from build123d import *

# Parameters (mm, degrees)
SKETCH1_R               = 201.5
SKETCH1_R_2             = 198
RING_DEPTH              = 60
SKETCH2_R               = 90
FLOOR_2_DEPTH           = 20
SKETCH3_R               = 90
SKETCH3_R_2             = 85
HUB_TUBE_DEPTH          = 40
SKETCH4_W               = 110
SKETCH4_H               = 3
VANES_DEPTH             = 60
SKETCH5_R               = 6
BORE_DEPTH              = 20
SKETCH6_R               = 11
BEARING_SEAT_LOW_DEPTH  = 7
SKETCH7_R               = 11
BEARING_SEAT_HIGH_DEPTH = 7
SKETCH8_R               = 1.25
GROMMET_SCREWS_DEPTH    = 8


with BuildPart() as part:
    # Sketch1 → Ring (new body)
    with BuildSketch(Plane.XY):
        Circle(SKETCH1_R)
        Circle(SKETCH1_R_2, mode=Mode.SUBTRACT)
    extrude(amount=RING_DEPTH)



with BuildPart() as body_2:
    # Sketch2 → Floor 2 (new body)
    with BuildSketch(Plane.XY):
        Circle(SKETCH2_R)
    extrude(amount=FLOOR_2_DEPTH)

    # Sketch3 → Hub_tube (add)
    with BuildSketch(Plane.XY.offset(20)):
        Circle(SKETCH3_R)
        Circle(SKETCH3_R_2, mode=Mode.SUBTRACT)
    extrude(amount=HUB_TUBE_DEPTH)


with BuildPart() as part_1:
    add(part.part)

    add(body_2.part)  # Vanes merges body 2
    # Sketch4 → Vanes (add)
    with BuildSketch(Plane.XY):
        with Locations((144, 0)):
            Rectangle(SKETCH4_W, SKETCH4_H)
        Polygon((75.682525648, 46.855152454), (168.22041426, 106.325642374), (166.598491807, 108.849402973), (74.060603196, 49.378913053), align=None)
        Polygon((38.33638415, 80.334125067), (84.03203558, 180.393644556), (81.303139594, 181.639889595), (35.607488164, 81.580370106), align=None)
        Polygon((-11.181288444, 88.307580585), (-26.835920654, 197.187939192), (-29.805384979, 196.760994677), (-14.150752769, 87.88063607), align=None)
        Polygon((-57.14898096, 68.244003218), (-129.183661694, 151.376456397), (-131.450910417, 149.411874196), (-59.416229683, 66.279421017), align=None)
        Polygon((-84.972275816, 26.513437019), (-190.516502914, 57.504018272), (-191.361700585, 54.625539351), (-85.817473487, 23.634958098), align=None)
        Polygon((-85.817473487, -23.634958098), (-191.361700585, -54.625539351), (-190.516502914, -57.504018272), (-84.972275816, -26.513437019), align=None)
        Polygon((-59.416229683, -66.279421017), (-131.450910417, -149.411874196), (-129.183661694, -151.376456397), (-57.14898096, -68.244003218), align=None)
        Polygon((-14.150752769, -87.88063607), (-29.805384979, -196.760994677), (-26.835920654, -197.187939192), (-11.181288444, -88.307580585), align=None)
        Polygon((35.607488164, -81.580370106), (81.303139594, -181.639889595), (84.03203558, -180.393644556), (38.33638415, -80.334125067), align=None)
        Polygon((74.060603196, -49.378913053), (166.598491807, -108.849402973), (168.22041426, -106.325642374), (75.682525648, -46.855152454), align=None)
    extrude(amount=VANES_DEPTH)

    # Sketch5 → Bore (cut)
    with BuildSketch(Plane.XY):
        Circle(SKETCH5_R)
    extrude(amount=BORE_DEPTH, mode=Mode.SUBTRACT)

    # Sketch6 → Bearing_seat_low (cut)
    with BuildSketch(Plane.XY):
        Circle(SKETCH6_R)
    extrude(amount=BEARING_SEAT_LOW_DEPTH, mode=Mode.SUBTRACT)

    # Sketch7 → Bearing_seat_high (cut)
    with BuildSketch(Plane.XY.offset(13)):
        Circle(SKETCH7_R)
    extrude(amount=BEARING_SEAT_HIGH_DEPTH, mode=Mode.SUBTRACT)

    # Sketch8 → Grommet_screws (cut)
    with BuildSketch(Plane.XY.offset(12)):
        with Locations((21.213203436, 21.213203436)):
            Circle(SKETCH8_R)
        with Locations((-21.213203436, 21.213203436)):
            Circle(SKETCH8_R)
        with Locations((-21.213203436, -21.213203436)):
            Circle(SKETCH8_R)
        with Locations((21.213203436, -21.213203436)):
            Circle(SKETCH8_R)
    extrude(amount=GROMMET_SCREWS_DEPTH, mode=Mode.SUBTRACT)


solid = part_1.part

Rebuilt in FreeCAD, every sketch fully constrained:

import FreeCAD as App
import Part
import Sketcher


def add_polygon(sketch, points):
    """Adds a closed chain of lines whose ends are joined by coincident constraints."""
    first, n = sketch.GeometryCount, len(points)
    for a, b in zip(points, points[1:] + points[:1]):
        sketch.addGeometry(Part.LineSegment(App.Vector(*a, 0), App.Vector(*b, 0)), False)
    for i in range(n):
        sketch.addConstraint(Sketcher.Constraint("Coincident", first + i, 2, first + (i + 1) % n, 1))

doc = App.newDocument("Part")
body = doc.addObject("PartDesign::Body", "Body")

sketch1 = doc.addObject("Sketcher::SketchObject", "Sketch")
body.addObject(sketch1)
sketch1.AttachmentSupport = (doc.XY_Plane, [""])
sketch1.MapMode = "FlatFace"
sketch1.addGeometry([
    Part.Circle(App.Vector(0, 0, 0), App.Vector(0, 0, 1), 202),
    Part.Circle(App.Vector(0, 0, 0), App.Vector(0, 0, 1), 198),
], False)
sketch1.addConstraint([
    Sketcher.Constraint("Coincident", 0, 3, -1, 1),
    Sketcher.Constraint("Coincident", 1, 3, -1, 1),
    Sketcher.Constraint("Diameter", 0, 403.0),
    Sketcher.Constraint("Diameter", 1, 396.0),
])
pad1 = doc.addObject("PartDesign::Pad", "Pad")
body.addObject(pad1)
pad1.Profile = sketch1
pad1.Length = 60
body2 = doc.addObject("PartDesign::Body", "Body001")

sketch2 = doc.addObject("Sketcher::SketchObject", "Sketch001")
body2.addObject(sketch2)
sketch2.AttachmentSupport = (doc.getObject("XY_Plane001"), [""])
sketch2.MapMode = "FlatFace"
sketch2.addGeometry(Part.Circle(App.Vector(0, 0, 0), App.Vector(0, 0, 1), 90), False)
sketch2.addConstraint([
    Sketcher.Constraint("Coincident", 0, 3, -1, 1),
    Sketcher.Constraint("Diameter", 0, 180.0),
])
pad2 = doc.addObject("PartDesign::Pad", "Pad001")
body2.addObject(pad2)
pad2.Profile = sketch2
pad2.Length = 20

sketch3 = doc.addObject("Sketcher::SketchObject", "Sketch002")
body2.addObject(sketch3)
sketch3.AttachmentSupport = (doc.getObject("XY_Plane001"), [""])
sketch3.MapMode = "FlatFace"
sketch3.AttachmentOffset = App.Placement(App.Vector(0, 0, 20), App.Rotation())
sketch3.addGeometry([
    Part.Circle(App.Vector(0, 0, 0), App.Vector(0, 0, 1), 90),
    Part.Circle(App.Vector(0, 0, 0), App.Vector(0, 0, 1), 85),
], False)
sketch3.addConstraint([
    Sketcher.Constraint("Coincident", 0, 3, -1, 1),
    Sketcher.Constraint("Coincident", 1, 3, -1, 1),
    Sketcher.Constraint("Diameter", 0, 180.0),
    Sketcher.Constraint("Diameter", 1, 170.0),
])
pad3 = doc.addObject("PartDesign::Pad", "Pad002")
body2.addObject(pad3)
pad3.Profile = sketch3
pad3.Length = 40
body.AllowCompound = True
doc.recompute()

boolean = doc.addObject("PartDesign::Boolean", "Boolean")
body.addObject(boolean)
boolean.Type = "Fuse"
boolean.addObjects([body2])

sketch4 = doc.addObject("Sketcher::SketchObject", "Sketch003")
body.addObject(sketch4)
sketch4.AttachmentSupport = (doc.XY_Plane, [""])
sketch4.MapMode = "FlatFace"
add_polygon(sketch4, [(89, 1.5), (89, -1.5), (199, -1.5), (199, 1.5)])
add_polygon(sketch4, [(75.682526, 46.855152), (168.220414, 106.325642), (166.598492, 108.849403), (74.060603, 49.378913)])
add_polygon(sketch4, [(38.336384, 80.334125), (84.032036, 180.393645), (81.30314, 181.63989), (35.607488, 81.58037)])
add_polygon(sketch4, [(-11.181288, 88.307581), (-26.835921, 197.187939), (-29.805385, 196.760995), (-14.150753, 87.880636)])
add_polygon(sketch4, [(-57.148981, 68.244003), (-129.183662, 151.376456), (-131.45091, 149.411874), (-59.41623, 66.279421)])
add_polygon(sketch4, [(-84.972276, 26.513437), (-190.516503, 57.504018), (-191.361701, 54.625539), (-85.817473, 23.634958)])
add_polygon(sketch4, [(-85.817473, -23.634958), (-191.361701, -54.625539), (-190.516503, -57.504018), (-84.972276, -26.513437)])
add_polygon(sketch4, [(-59.41623, -66.279421), (-131.45091, -149.411874), (-129.183662, -151.376456), (-57.148981, -68.244003)])
add_polygon(sketch4, [(-14.150753, -87.880636), (-29.805385, -196.760995), (-26.835921, -197.187939), (-11.181288, -88.307581)])
add_polygon(sketch4, [(35.607488, -81.58037), (81.30314, -181.63989), (84.032036, -180.393645), (38.336384, -80.334125)])
add_polygon(sketch4, [(74.060603, -49.378913), (166.598492, -108.849403), (168.220414, -106.325642), (75.682526, -46.855152)])
sketch4.addConstraint([
    Sketcher.Constraint("Vertical", 0),
    Sketcher.Constraint("Horizontal", 1),
    Sketcher.Constraint("Vertical", 2),
    Sketcher.Constraint("Horizontal", 3),
    Sketcher.Constraint("DistanceX", 1, 1, 1, 2, 110.0),
    Sketcher.Constraint("DistanceY", 0, 2, 0, 1, 3.0),
    Sketcher.Constraint("Distance", 4, 110.0),
    Sketcher.Constraint("Distance", 5, 3.0),
    Sketcher.Constraint("Distance", 6, 110.0),
    Sketcher.Constraint("Distance", 7, 3.0),
    Sketcher.Constraint("Distance", 8, 110.0),
    Sketcher.Constraint("Distance", 9, 3.0),
    Sketcher.Constraint("Distance", 10, 110.0),
    Sketcher.Constraint("Distance", 11, 3.0),
    Sketcher.Constraint("Distance", 12, 110.0),
    Sketcher.Constraint("Distance", 13, 3.0),
    Sketcher.Constraint("Distance", 14, 110.0),
    Sketcher.Constraint("Distance", 15, 3.0),
    Sketcher.Constraint("Distance", 16, 110.0),
    Sketcher.Constraint("Distance", 17, 3.0),
    Sketcher.Constraint("Distance", 18, 110.0),
    Sketcher.Constraint("Distance", 19, 3.0),
    Sketcher.Constraint("Distance", 20, 110.0),
    Sketcher.Constraint("Distance", 21, 3.0),
    Sketcher.Constraint("Distance", 22, 110.0),
    Sketcher.Constraint("Distance", 23, 3.0),
    Sketcher.Constraint("Distance", 24, 110.0),
    Sketcher.Constraint("Distance", 25, 3.0),
    Sketcher.Constraint("Distance", 26, 110.0),
    Sketcher.Constraint("Distance", 27, 3.0),
    Sketcher.Constraint("Distance", 28, 110.0),
    Sketcher.Constraint("Distance", 29, 3.0),
    Sketcher.Constraint("Distance", 30, 110.0),
    Sketcher.Constraint("Distance", 31, 3.0),
    Sketcher.Constraint("Distance", 32, 110.0),
    Sketcher.Constraint("Distance", 33, 3.0),
    Sketcher.Constraint("Distance", 34, 110.0),
    Sketcher.Constraint("Distance", 35, 3.0),
    Sketcher.Constraint("Distance", 36, 110.0),
    Sketcher.Constraint("Distance", 37, 3.0),
    Sketcher.Constraint("Distance", 38, 110.0),
    Sketcher.Constraint("Distance", 39, 3.0),
    Sketcher.Constraint("Distance", 40, 110.0),
    Sketcher.Constraint("Distance", 41, 3.0),
    Sketcher.Constraint("Distance", 42, 110.0),
    Sketcher.Constraint("Distance", 43, 3.0),
    Sketcher.Constraint("DistanceX", -1, 1, 0, 2, 89.0),
    Sketcher.Constraint("DistanceY", 0, 2, -1, 1, 1.5),
    Sketcher.Constraint("DistanceX", 21, 2, -1, 1, 191.361701),
    Sketcher.Constraint("DistanceX", 24, 2, -1, 1, 191.361701),
    Sketcher.Constraint("DistanceY", 23, 2, 14, 2, 61.367199),
    Sketcher.Constraint("DistanceY", 29, 2, 27, 2, 127.741498),
    Sketcher.Constraint("DistanceY", 35, 2, 26, 2, 61.367199),
    Sketcher.Constraint("DistanceX", -1, 1, 5, 2, 166.598492),
    Sketcher.Constraint("DistanceX", -1, 1, 9, 2, 81.30314),
    Sketcher.Constraint("DistanceY", -1, 1, 9, 2, 181.63989),
    Sketcher.Constraint("DistanceX", -1, 1, 10, 2, 35.607488),
    Sketcher.Constraint("DistanceX", 12, 2, -1, 1, 26.835921),
    Sketcher.Constraint("DistanceY", -1, 1, 12, 2, 197.187939),
    Sketcher.Constraint("DistanceX", 15, 2, -1, 1, 11.181288),
    Sketcher.Constraint("DistanceX", 16, 2, -1, 1, 129.183662),
    Sketcher.Constraint("DistanceX", 17, 2, -1, 1, 131.45091),
    Sketcher.Constraint("DistanceX", 18, 2, -1, 1, 59.41623),
    Sketcher.Constraint("DistanceY", -1, 1, 18, 2, 66.279421),
    Sketcher.Constraint("DistanceY", -1, 1, 20, 2, 57.504018),
    Sketcher.Constraint("DistanceY", -1, 1, 21, 2, 54.625539),
    Sketcher.Constraint("DistanceY", -1, 1, 22, 2, 23.634958),
    Sketcher.Constraint("DistanceY", 24, 2, -1, 1, 54.625539),
    Sketcher.Constraint("DistanceY", 25, 2, -1, 1, 57.504018),
    Sketcher.Constraint("DistanceY", 27, 2, -1, 1, 23.634958),
    Sketcher.Constraint("DistanceX", 28, 2, -1, 1, 131.45091),
    Sketcher.Constraint("DistanceX", 29, 2, -1, 1, 129.183662),
    Sketcher.Constraint("DistanceX", 30, 2, -1, 1, 57.148981),
    Sketcher.Constraint("DistanceX", 33, 2, -1, 1, 26.835921),
    Sketcher.Constraint("DistanceY", 33, 2, -1, 1, 197.187939),
    Sketcher.Constraint("DistanceX", 34, 2, -1, 1, 11.181288),
    Sketcher.Constraint("DistanceX", -1, 1, 36, 2, 81.30314),
    Sketcher.Constraint("DistanceY", 36, 2, -1, 1, 181.63989),
    Sketcher.Constraint("DistanceX", -1, 1, 39, 2, 35.607488),
    Sketcher.Constraint("DistanceX", -1, 1, 40, 2, 166.598492),
    Sketcher.Constraint("DistanceY", 4, 2, 5, 2, 2.523761),
    Sketcher.Constraint("DistanceX", 6, 2, 5, 2, 92.537889),
    Sketcher.Constraint("DistanceY", 5, 2, 8, 2, 71.544242),
    Sketcher.Constraint("DistanceX", 8, 2, 4, 2, 84.188379),
    Sketcher.Constraint("DistanceX", 32, 2, 37, 2, 113.837421),
    Sketcher.Constraint("DistanceY", 37, 2, 40, 2, 71.544242),
    Sketcher.Constraint("DistanceY", 40, 2, 41, 2, 2.523761),
    Sketcher.Constraint("DistanceX", 38, 2, 42, 2, 37.346141),
])
pad4 = doc.addObject("PartDesign::Pad", "Pad003")
body.addObject(pad4)
pad4.Profile = sketch4
pad4.Length = 60

sketch5 = doc.addObject("Sketcher::SketchObject", "Sketch004")
body.addObject(sketch5)
sketch5.AttachmentSupport = (doc.XY_Plane, [""])
sketch5.MapMode = "FlatFace"
sketch5.addGeometry(Part.Circle(App.Vector(0, 0, 0), App.Vector(0, 0, 1), 6), False)
sketch5.addConstraint([
    Sketcher.Constraint("Coincident", 0, 3, -1, 1),
    Sketcher.Constraint("Diameter", 0, 12.0),
])
pocket1 = doc.addObject("PartDesign::Pocket", "Pocket")
body.addObject(pocket1)
pocket1.Profile = sketch5
pocket1.Length = 20
pocket1.Reversed = True

sketch6 = doc.addObject("Sketcher::SketchObject", "Sketch005")
body.addObject(sketch6)
sketch6.AttachmentSupport = (doc.XY_Plane, [""])
sketch6.MapMode = "FlatFace"
sketch6.addGeometry(Part.Circle(App.Vector(0, 0, 0), App.Vector(0, 0, 1), 11), False)
sketch6.addConstraint([
    Sketcher.Constraint("Coincident", 0, 3, -1, 1),
    Sketcher.Constraint("Diameter", 0, 22.0),
])
pocket2 = doc.addObject("PartDesign::Pocket", "Pocket001")
body.addObject(pocket2)
pocket2.Profile = sketch6
pocket2.Length = 7
pocket2.Reversed = True

sketch7 = doc.addObject("Sketcher::SketchObject", "Sketch006")
body.addObject(sketch7)
sketch7.AttachmentSupport = (doc.XY_Plane, [""])
sketch7.MapMode = "FlatFace"
sketch7.AttachmentOffset = App.Placement(App.Vector(0, 0, 13), App.Rotation())
sketch7.addGeometry(Part.Circle(App.Vector(0, 0, 0), App.Vector(0, 0, 1), 11), False)
sketch7.addConstraint([
    Sketcher.Constraint("Coincident", 0, 3, -1, 1),
    Sketcher.Constraint("Diameter", 0, 22.0),
])
pocket3 = doc.addObject("PartDesign::Pocket", "Pocket002")
body.addObject(pocket3)
pocket3.Profile = sketch7
pocket3.Length = 7
pocket3.Reversed = True

sketch8 = doc.addObject("Sketcher::SketchObject", "Sketch007")
body.addObject(sketch8)
sketch8.AttachmentSupport = (doc.XY_Plane, [""])
sketch8.MapMode = "FlatFace"
sketch8.AttachmentOffset = App.Placement(App.Vector(0, 0, 12), App.Rotation())
sketch8.addGeometry([
    Part.Circle(App.Vector(21.2, 21.2, 0), App.Vector(0, 0, 1), 1.2),
    Part.Circle(App.Vector(-21.2, 21.2, 0), App.Vector(0, 0, 1), 1.2),
    Part.Circle(App.Vector(-21.2, -21.2, 0), App.Vector(0, 0, 1), 1.2),
    Part.Circle(App.Vector(21.2, -21.2, 0), App.Vector(0, 0, 1), 1.2),
], False)
sketch8.addConstraint([
    Sketcher.Constraint("Equal", 0, 1),
    Sketcher.Constraint("Equal", 1, 2),
    Sketcher.Constraint("Equal", 2, 3),
    Sketcher.Constraint("Symmetric", 0, 3, 2, 3, -1, 1),
    Sketcher.Constraint("Symmetric", 1, 3, 3, 3, -1, 1),
    Sketcher.Constraint("Symmetric", 0, 3, 1, 3, -2),
    Sketcher.Constraint("Diameter", 0, 2.5),
    Sketcher.Constraint("DistanceX", -1, 1, 0, 3, 21.213203),
    Sketcher.Constraint("DistanceY", -1, 1, 0, 3, 21.213203),
])
pocket4 = doc.addObject("PartDesign::Pocket", "Pocket003")
body.addObject(pocket4)
pocket4.Profile = sketch8
pocket4.Length = 8
pocket4.Reversed = True

doc.recompute()
